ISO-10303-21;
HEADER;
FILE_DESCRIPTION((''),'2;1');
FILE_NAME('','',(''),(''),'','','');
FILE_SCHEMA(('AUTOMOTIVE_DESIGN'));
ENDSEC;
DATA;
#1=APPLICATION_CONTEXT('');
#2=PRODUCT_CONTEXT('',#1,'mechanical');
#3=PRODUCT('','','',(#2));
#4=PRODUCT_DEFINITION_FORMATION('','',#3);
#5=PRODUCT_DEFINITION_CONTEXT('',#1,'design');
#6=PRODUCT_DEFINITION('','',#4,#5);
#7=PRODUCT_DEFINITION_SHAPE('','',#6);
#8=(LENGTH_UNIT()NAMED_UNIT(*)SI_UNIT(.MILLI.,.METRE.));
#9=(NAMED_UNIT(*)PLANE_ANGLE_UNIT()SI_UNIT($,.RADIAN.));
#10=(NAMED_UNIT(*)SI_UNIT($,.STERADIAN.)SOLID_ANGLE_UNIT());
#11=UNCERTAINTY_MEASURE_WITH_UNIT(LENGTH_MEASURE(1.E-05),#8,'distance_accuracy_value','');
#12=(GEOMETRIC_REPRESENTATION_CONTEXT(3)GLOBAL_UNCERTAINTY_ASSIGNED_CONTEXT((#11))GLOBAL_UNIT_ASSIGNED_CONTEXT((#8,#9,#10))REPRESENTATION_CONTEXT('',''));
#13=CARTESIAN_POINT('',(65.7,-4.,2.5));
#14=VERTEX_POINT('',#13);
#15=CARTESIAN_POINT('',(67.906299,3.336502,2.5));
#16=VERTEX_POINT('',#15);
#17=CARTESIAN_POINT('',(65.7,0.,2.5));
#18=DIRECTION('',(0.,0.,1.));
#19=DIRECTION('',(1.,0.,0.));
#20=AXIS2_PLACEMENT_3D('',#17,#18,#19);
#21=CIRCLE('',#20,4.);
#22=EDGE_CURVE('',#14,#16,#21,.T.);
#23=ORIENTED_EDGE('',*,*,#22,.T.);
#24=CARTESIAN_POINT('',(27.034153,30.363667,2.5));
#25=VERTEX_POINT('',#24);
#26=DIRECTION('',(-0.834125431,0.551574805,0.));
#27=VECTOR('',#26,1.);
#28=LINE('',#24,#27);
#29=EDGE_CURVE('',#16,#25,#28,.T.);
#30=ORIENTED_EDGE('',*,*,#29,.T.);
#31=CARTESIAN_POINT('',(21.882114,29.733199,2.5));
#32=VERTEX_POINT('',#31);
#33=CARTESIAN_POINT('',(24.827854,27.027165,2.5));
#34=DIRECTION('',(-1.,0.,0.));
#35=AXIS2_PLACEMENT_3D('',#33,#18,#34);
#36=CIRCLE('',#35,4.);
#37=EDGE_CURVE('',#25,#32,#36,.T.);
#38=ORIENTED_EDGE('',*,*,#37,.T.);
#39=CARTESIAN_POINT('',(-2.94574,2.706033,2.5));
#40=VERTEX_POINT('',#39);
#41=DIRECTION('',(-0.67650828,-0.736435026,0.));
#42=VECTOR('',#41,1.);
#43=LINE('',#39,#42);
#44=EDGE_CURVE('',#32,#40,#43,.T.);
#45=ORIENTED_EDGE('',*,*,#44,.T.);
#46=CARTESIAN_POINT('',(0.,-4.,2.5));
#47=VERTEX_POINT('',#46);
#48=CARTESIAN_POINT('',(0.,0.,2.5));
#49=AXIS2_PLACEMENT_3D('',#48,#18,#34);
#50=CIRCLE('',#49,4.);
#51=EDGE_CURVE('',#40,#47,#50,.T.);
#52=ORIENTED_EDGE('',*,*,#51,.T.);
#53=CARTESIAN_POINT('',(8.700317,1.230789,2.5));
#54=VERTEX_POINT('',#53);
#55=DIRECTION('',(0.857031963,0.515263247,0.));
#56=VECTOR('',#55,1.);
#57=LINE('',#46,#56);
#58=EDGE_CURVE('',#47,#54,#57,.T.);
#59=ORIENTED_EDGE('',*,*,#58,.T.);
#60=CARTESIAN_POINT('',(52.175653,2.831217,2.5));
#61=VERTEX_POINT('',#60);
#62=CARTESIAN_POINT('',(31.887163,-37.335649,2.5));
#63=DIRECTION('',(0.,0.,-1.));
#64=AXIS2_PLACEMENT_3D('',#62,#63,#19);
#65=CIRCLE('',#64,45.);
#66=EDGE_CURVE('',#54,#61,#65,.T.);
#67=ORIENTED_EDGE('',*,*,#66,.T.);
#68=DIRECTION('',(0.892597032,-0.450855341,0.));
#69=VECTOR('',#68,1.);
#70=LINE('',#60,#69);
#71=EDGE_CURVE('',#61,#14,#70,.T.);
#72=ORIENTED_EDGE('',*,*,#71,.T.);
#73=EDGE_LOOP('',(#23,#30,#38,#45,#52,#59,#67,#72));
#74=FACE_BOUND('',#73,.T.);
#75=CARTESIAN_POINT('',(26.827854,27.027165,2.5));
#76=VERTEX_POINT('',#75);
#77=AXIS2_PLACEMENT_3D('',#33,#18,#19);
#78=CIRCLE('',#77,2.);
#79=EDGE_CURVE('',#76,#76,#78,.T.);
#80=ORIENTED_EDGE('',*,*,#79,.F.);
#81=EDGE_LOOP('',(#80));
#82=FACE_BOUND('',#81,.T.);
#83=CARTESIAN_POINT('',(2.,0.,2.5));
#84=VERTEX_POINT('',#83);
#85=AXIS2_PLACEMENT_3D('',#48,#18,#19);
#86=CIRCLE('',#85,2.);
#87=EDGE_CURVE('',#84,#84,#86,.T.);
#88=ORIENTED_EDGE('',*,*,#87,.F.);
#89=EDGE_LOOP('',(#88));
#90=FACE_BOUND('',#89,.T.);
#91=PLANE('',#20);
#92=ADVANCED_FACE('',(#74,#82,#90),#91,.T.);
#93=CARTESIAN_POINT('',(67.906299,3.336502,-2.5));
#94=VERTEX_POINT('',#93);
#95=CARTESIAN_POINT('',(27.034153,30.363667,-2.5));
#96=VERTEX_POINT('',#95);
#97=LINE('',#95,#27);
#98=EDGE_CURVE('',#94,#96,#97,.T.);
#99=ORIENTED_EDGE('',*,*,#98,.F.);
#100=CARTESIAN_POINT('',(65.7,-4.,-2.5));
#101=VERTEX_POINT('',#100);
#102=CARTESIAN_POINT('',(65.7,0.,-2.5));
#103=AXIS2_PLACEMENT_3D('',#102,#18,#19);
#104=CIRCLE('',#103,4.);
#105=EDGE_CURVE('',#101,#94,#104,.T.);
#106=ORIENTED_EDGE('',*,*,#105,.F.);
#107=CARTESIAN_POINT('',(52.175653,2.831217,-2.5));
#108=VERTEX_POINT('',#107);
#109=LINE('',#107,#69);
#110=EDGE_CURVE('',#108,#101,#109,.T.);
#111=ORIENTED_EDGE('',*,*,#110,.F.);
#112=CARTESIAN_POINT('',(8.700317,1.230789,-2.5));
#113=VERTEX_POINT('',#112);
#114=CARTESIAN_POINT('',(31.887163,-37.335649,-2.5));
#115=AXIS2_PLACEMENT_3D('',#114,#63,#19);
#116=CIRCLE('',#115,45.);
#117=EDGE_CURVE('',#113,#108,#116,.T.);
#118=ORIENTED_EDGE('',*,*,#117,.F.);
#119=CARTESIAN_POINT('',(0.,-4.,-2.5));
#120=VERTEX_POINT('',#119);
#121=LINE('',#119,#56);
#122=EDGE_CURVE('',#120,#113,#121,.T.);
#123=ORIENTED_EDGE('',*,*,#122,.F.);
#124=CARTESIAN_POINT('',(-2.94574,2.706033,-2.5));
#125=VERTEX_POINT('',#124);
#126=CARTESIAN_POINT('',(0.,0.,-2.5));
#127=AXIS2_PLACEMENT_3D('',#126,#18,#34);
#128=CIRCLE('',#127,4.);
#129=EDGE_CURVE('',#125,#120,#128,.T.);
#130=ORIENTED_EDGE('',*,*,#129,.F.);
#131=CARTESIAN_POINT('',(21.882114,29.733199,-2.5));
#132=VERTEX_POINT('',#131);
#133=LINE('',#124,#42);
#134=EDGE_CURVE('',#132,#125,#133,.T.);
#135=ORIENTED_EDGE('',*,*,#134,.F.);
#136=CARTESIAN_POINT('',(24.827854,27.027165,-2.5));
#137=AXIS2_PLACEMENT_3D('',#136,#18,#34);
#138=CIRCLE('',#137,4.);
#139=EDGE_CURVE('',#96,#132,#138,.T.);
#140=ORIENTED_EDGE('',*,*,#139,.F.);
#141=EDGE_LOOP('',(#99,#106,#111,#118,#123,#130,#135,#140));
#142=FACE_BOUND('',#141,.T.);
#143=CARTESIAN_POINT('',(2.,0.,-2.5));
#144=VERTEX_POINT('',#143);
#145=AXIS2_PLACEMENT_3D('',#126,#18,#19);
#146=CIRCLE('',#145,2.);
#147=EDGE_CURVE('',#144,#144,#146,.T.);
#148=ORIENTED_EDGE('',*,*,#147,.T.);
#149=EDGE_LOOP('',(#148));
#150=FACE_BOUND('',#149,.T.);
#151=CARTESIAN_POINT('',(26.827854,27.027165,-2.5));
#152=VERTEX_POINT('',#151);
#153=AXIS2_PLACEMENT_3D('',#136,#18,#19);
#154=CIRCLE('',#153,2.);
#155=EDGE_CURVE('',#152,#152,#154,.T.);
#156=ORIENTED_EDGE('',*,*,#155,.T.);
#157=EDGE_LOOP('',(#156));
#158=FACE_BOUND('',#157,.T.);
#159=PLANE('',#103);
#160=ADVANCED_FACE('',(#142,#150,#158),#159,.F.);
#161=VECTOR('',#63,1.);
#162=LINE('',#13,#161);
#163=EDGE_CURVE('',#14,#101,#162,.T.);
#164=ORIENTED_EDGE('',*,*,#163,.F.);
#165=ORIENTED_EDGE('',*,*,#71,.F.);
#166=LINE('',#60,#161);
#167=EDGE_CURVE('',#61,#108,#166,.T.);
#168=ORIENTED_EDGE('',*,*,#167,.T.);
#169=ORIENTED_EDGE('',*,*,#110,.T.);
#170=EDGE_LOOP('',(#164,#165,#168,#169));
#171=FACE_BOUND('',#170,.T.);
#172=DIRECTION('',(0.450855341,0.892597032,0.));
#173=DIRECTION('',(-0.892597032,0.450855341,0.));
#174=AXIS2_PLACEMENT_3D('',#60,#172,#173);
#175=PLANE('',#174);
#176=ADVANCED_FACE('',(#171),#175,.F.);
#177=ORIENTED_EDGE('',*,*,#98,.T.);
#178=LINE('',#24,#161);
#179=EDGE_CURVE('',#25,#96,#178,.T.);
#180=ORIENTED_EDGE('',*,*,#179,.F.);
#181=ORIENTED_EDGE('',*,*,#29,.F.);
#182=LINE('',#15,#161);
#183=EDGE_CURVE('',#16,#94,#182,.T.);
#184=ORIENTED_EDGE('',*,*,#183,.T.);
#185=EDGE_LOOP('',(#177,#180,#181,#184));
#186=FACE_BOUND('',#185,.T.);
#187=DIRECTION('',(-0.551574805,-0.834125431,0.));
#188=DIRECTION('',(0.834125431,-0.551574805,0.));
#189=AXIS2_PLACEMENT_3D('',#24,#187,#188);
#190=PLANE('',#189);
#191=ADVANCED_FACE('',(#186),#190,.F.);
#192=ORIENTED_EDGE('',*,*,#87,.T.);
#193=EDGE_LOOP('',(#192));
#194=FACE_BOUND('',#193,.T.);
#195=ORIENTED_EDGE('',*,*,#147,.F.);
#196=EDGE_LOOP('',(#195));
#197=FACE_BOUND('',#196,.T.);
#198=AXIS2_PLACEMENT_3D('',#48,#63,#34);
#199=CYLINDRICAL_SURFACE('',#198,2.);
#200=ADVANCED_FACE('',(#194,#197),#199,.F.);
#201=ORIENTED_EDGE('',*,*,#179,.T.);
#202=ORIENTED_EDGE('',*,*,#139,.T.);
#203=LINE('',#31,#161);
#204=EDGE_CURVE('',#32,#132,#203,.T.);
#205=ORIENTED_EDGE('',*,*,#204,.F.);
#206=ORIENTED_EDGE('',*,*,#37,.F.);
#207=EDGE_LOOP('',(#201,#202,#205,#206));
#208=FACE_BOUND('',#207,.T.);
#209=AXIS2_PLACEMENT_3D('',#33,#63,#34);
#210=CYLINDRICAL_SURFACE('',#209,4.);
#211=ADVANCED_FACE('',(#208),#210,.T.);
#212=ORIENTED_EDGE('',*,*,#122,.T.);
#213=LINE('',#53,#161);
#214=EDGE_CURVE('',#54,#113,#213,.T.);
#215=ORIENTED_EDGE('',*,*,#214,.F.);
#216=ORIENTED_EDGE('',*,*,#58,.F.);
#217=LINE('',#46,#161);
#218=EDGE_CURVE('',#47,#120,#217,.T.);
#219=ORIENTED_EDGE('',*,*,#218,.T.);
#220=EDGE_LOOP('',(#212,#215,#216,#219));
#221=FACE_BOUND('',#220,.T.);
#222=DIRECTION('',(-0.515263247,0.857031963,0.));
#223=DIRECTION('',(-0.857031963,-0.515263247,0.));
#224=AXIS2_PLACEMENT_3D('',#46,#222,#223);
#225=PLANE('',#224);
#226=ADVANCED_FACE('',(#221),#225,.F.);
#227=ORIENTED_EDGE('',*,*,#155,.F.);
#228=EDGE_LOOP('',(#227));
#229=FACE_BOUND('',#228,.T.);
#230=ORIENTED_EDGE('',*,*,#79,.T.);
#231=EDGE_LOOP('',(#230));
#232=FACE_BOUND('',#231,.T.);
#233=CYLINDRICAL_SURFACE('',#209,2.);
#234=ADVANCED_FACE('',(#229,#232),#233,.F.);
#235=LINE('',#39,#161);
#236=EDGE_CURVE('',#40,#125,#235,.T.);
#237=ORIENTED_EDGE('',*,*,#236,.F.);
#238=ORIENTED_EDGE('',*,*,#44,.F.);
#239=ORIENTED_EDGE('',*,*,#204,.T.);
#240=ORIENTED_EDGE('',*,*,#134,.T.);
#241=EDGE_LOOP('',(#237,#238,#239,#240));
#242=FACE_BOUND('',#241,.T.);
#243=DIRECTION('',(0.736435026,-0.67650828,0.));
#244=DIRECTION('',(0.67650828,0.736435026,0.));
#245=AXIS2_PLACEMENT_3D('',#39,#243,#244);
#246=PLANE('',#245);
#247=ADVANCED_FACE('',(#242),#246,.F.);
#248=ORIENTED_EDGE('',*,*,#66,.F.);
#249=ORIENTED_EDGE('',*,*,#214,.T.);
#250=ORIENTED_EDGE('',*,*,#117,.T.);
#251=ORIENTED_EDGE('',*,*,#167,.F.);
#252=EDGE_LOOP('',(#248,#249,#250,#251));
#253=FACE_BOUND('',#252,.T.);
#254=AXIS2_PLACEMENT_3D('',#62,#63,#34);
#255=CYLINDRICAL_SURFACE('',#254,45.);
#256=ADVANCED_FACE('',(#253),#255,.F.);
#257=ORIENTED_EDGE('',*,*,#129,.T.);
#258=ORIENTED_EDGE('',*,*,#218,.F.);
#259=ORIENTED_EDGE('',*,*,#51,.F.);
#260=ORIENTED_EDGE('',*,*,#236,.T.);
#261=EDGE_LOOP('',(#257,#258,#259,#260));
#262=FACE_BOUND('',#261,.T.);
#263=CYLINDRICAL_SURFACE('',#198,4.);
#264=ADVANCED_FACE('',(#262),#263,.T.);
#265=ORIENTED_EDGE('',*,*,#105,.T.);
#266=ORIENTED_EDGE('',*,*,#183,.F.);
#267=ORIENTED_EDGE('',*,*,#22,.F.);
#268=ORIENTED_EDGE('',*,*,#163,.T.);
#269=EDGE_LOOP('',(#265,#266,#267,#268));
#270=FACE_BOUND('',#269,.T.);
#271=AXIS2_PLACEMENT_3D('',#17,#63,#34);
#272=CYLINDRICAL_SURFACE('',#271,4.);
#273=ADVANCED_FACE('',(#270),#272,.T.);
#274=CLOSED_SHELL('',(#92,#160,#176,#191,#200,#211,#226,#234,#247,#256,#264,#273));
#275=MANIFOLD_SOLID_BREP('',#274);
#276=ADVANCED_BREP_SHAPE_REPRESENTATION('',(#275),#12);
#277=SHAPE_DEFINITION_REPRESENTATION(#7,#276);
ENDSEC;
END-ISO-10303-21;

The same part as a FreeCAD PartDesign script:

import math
import FreeCAD as App
import Part
import Sketcher

doc = App.newDocument("Part")
body = doc.addObject("PartDesign::Body", "Body")

sketch1 = body.newObject("Sketcher::SketchObject", "Sketch")
sketch1.AttachmentSupport = (doc.getObject("XY_Plane"), [""])
sketch1.MapMode = "FlatFace"
sketch1.addGeometry(Part.LineSegment(App.Vector(67.9, 3.3, 0), App.Vector(27, 30.4, 0)), False)
sketch1.addGeometry(Part.ArcOfCircle(Part.Circle(App.Vector(24.8, 27, 0), App.Vector(0, 0, 1), 4), math.radians(57), math.radians(137)), False)
sketch1.addGeometry(Part.LineSegment(App.Vector(21.9, 29.7, 0), App.Vector(-2.9, 2.7, 0)), False)
sketch1.addGeometry(Part.ArcOfCircle(Part.Circle(App.Vector(0, 0, 0), App.Vector(0, 0, 1), 4), math.radians(137), math.radians(270)), False)
sketch1.addGeometry(Part.LineSegment(App.Vector(0, -4, 0), App.Vector(8.7, 1.2, 0)), False)
sketch1.addGeometry(Part.ArcOfCircle(Part.Circle(App.Vector(31.9, -37.3, 0), App.Vector(0, 0, 1), 45), math.radians(63), math.radians(121)), False)
sketch1.addGeometry(Part.LineSegment(App.Vector(52.2, 2.8, 0), App.Vector(65.7, -4, 0)), False)
sketch1.addGeometry(Part.ArcOfCircle(Part.Circle(App.Vector(65.7, 0, 0), App.Vector(0, 0, 1), 4), math.radians(-90), math.radians(57)), False)
sketch1.addGeometry(Part.Circle(App.Vector(0, 0, 0), App.Vector(0, 0, 1), 2), False)
sketch1.addGeometry(Part.Circle(App.Vector(24.8, 27, 0), App.Vector(0, 0, 1), 2), False)
sketch1.addConstraint(Sketcher.Constraint("Tangent", 0, 2, 1, 1))
sketch1.addConstraint(Sketcher.Constraint("Tangent", 1, 2, 2, 1))
sketch1.addConstraint(Sketcher.Constraint("Tangent", 2, 2, 3, 1))
sketch1.addConstraint(Sketcher.Constraint("Coincident", 3, 2, 4, 1))
sketch1.addConstraint(Sketcher.Constraint("Tangent", 4, 2, 5, 2))
sketch1.addConstraint(Sketcher.Constraint("Tangent", 5, 1, 6, 1))
sketch1.addConstraint(Sketcher.Constraint("Coincident", 6, 2, 7, 1))
sketch1.addConstraint(Sketcher.Constraint("Tangent", 7, 2, 0, 1))
sketch1.addConstraint(Sketcher.Constraint("Coincident", 3, 3, -1, 1))
sketch1.addConstraint(Sketcher.Constraint("Coincident", 8, 3, -1, 1))
sketch1.addConstraint(Sketcher.Constraint("Coincident", 9, 3, 1, 3))
sketch1.addConstraint(Sketcher.Constraint("Equal", 1, 3))
sketch1.addConstraint(Sketcher.Constraint("Equal", 3, 7))
sketch1.addConstraint(Sketcher.Constraint("Equal", 8, 9))
sketch1.addConstraint(Sketcher.Constraint("PointOnObject", 7, 3, -1))
sketch1.addConstraint(Sketcher.Constraint("PointOnObject", 3, 2, -2))
sketch1.addConstraint(Sketcher.Constraint("Vertical", 7, 3, 6, 2))
sketch1.addConstraint(Sketcher.Constraint("Diameter", 8, 4.0))
sketch1.addConstraint(Sketcher.Constraint("Radius", 1, 4.0))
sketch1.addConstraint(Sketcher.Constraint("Radius", 5, 45.0))
sketch1.addConstraint(Sketcher.Constraint("Distance", 0, 49.0))
sketch1.addConstraint(Sketcher.Constraint("Distance", 2, 36.7))
sketch1.addConstraint(Sketcher.Constraint("DistanceX", -1, 1, 7, 3, 65.7))
sketch1.addConstraint(Sketcher.Constraint("DistanceX", 1, 3, 5, 1, 27.347799))
sketch1.addConstraint(Sketcher.Constraint("DistanceY", 5, 3, -1, 1, 37.335649))
pad1 = body.newObject("PartDesign::Pad", "Pad")
pad1.Profile = sketch1
pad1.Length = 5
pad1.Midplane = True

doc.recompute()
